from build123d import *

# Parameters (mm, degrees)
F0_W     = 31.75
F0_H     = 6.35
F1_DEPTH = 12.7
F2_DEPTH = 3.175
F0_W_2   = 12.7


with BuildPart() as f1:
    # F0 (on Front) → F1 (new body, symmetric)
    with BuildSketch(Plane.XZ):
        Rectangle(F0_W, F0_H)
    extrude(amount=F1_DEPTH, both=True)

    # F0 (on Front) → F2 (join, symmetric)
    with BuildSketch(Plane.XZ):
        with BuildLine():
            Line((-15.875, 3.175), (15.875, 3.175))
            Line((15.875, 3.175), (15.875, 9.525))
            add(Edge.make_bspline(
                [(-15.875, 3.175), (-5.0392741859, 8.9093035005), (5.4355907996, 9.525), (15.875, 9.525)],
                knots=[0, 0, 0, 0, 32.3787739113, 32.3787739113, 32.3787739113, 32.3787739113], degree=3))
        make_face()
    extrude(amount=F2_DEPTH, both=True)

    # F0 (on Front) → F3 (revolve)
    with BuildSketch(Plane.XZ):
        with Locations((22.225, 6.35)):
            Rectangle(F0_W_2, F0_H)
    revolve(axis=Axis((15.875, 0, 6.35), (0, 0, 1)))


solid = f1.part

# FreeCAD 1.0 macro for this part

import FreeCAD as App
import Part
import Sketcher
Q = App.Units.Quantity


def add_polygon(sketch, points):
    """Adds a closed chain of lines whose ends are joined by coincident constraints."""
    first, n = sketch.GeometryCount, len(points)
    for a, b in zip(points, points[1:] + points[:1]):
        sketch.addGeometry(Part.LineSegment(App.Vector(*a, 0), App.Vector(*b, 0)), False)
    for i in range(n):
        sketch.addConstraint(Sketcher.Constraint("Coincident", first + i, 2, first + (i + 1) % n, 1))

doc = App.newDocument("Part")
params = doc.addObject("Spreadsheet::Sheet", "Params")
for row, (alias, value) in enumerate([
    ("sketch1_width", "1.25 in"),
    ("sketch1_height", "0.25 in"),
    ("pad1_length", "1 in"),
    ("pad2_length", "0.25 in"),
    ("sketch3_width", "0.5 in"),
    ("sketch3_height", "0.25 in"),
    ("revolution_angle", "360 deg"),
], start=1):
    params.set(f"A{row}", alias)
    params.set(f"B{row}", "=" + value)
    params.setAlias(f"B{row}", alias)

body = doc.addObject("PartDesign::Body", "Body")

sketch1 = body.newObject("Sketcher::SketchObject", "Sketch")
sketch1.AttachmentSupport = (doc.getObject("XZ_Plane"), [""])
sketch1.MapMode = "FlatFace"
add_polygon(sketch1, [(-16, 3), (-16, -3), (16, -3), (16, 3)])
sketch1.addConstraint([
    Sketcher.Constraint("Vertical", 0),
    Sketcher.Constraint("Horizontal", 1),
    Sketcher.Constraint("Vertical", 2),
    Sketcher.Constraint("Horizontal", 3),
    Sketcher.Constraint("Symmetric", 0, 2, 2, 2, -1, 1),
    Sketcher.Constraint("DistanceX", 1, 1, 1, 2, Q("1.25 in")),
    Sketcher.Constraint("DistanceY", 0, 2, 0, 1, Q("0.25 in")),
])
sketch1.setExpression("Constraints[9]", "Params.sketch1_width")
sketch1.setExpression("Constraints[10]", "Params.sketch1_height")
pad1 = body.newObject("PartDesign::Pad", "Pad")
pad1.Profile = sketch1
pad1.setExpression("Length", "Params.pad1_length")
pad1.Midplane = True

sketch2 = body.newObject("Sketcher::SketchObject", "Sketch001")
sketch2.AttachmentSupport = (doc.getObject("XZ_Plane"), [""])
sketch2.MapMode = "FlatFace"
sketch2.addGeometry([
    Part.LineSegment(App.Vector(-15.875, 3.175, 0), App.Vector(15.875, 3.175, 0)),
    Part.LineSegment(App.Vector(15.875, 3.175, 0), App.Vector(15.875, 9.525, 0)),
    Part.BSplineCurve([App.Vector(-15.875, 3.175, 0), App.Vector(-5.039274, 8.909304, 0), App.Vector(5.435591, 9.525, 0), App.Vector(15.875, 9.525, 0)], [4, 4], [0, 32.378773911], False, 3, [1, 1, 1, 1], False),
], False)
sketch2.addConstraint([
    Sketcher.Constraint("Block", 2),
    Sketcher.Constraint("Coincident", 0, 2, 1, 1),
    Sketcher.Constraint("Coincident", 1, 2, 2, 2),
    Sketcher.Constraint("Coincident", 2, 1, 0, 1),
    Sketcher.Constraint("Horizontal", 0),
    Sketcher.Constraint("Vertical", 1),
])
pad2 = body.newObject("PartDesign::Pad", "Pad001")
pad2.Profile = sketch2
pad2.setExpression("Length", "Params.pad2_length")
pad2.Midplane = True

sketch3 = body.newObject("Sketcher::SketchObject", "Sketch002")
sketch3.AttachmentSupport = (doc.getObject("XZ_Plane"), [""])
sketch3.MapMode = "FlatFace"
add_polygon(sketch3, [(16, 10), (16, 3), (29, 3), (29, 10)])
sketch3.addGeometry(Part.LineSegment(App.Vector(16, 3, 0), App.Vector(16, 10, 0)), True)
sketch3.addConstraint([
    Sketcher.Constraint("Vertical", 0),
    Sketcher.Constraint("Horizontal", 1),
    Sketcher.Constraint("Vertical", 2),
    Sketcher.Constraint("Horizontal", 3),
    Sketcher.Constraint("Vertical", 4),
    Sketcher.Constraint("Coincident", 4, 1, 0, 2),
    Sketcher.Constraint("Horizontal", 2, 2, 4, 2),
    Sketcher.Constraint("DistanceX", 1, 1, 1, 2, Q("0.5 in")),
    Sketcher.Constraint("DistanceY", 0, 2, 0, 1, Q("0.25 in")),
    Sketcher.Constraint("DistanceX", -1, 1, 0, 2, Q("0.625 in")),
    Sketcher.Constraint("DistanceY", -1, 1, 0, 2, Q("0.125 in")),
])
sketch3.setExpression("Constraints[11]", "Params.sketch3_width")
sketch3.setExpression("Constraints[12]", "Params.sketch3_height")
revolution = body.newObject("PartDesign::Revolution", "Revolution")
revolution.Profile = sketch3
revolution.ReferenceAxis = (sketch3, ["Axis0"])
revolution.setExpression("Angle", "Params.revolution_angle")

doc.recompute()
